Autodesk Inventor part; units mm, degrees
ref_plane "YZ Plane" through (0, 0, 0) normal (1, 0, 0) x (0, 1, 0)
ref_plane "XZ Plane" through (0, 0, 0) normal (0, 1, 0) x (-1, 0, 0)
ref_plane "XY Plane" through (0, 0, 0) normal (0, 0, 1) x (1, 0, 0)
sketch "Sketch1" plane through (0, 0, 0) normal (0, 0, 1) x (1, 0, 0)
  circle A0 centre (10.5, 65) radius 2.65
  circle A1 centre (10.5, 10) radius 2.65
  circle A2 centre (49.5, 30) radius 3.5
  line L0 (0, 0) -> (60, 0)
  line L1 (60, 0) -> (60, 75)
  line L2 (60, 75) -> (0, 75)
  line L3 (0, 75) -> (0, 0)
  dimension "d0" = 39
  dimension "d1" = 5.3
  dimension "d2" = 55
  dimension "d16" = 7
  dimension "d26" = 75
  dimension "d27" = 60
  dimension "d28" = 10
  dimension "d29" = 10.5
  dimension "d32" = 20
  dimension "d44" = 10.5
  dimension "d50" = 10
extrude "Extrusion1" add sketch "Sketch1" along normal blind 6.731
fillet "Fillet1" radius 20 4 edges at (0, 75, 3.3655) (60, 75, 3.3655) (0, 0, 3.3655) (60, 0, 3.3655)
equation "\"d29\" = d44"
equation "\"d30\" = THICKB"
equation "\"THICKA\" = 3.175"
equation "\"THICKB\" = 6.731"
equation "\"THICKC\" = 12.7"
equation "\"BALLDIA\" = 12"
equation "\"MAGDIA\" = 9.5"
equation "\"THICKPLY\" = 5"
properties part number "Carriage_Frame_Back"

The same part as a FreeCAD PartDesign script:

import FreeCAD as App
import Part
import Sketcher

V = App.Vector


def edges_at(feature, points):
    """Names of the edges that pass closest to the given points."""
    edges = feature.Shape.Edges
    near = lambda p: min(range(len(edges)), key=lambda i: edges[i].distToShape(Part.Vertex(*p))[0])
    return sorted({f"Edge{near(p) + 1}" for p in points})

doc = App.newDocument("Part")
body = doc.addObject("PartDesign::Body", "Body")

# Sketch on XY plane
sketch1 = body.newObject("Sketcher::SketchObject", "Sketch")
sketch1.AttachmentSupport = (doc.getObject("XY_Plane"), [""])
sketch1.MapMode = "FlatFace"
sketch1.addGeometry(Part.LineSegment(V(0, 75, 0), V(0, 0, 0)), False)
sketch1.addGeometry(Part.LineSegment(V(0, 0, 0), V(60, 0, 0)), False)
sketch1.addGeometry(Part.LineSegment(V(60, 0, 0), V(60, 75, 0)), False)
sketch1.addGeometry(Part.LineSegment(V(60, 75, 0), V(0, 75, 0)), False)
sketch1.addGeometry(Part.Circle(V(10.5, 10, 0), V(0, 0, 1), 2.6), False)
sketch1.addGeometry(Part.Circle(V(49.5, 30, 0), V(0, 0, 1), 3.5), False)
sketch1.addGeometry(Part.Circle(V(10.5, 65, 0), V(0, 0, 1), 2.6), False)
sketch1.addConstraint(Sketcher.Constraint("Coincident", 0, 2, 1, 1))
sketch1.addConstraint(Sketcher.Constraint("Coincident", 1, 2, 2, 1))
sketch1.addConstraint(Sketcher.Constraint("Coincident", 2, 2, 3, 1))
sketch1.addConstraint(Sketcher.Constraint("Coincident", 3, 2, 0, 1))
sketch1.addConstraint(Sketcher.Constraint("Vertical", 0))
sketch1.addConstraint(Sketcher.Constraint("Horizontal", 1))
sketch1.addConstraint(Sketcher.Constraint("Vertical", 2))
sketch1.addConstraint(Sketcher.Constraint("Horizontal", 3))
sketch1.addConstraint(Sketcher.Constraint("Coincident", 0, 2, -1, 1))
sketch1.addConstraint(Sketcher.Constraint("Equal", 4, 6))
sketch1.addConstraint(Sketcher.Constraint("Vertical", 4, 3, 6, 3))
sketch1.addConstraint(Sketcher.Constraint("Diameter", 5, 7.0))
sketch1.addConstraint(Sketcher.Constraint("Diameter", 4, 5.3))
sketch1.addConstraint(Sketcher.Constraint("DistanceX", 1, 1, 1, 2, 60.0))
sketch1.addConstraint(Sketcher.Constraint("DistanceY", 0, 2, 0, 1, 75.0))
sketch1.addConstraint(Sketcher.Constraint("DistanceY", -1, 1, 4, 3, 10.0))
sketch1.addConstraint(Sketcher.Constraint("DistanceX", 4, 3, 5, 3, 39.0))
sketch1.addConstraint(Sketcher.Constraint("DistanceY", 4, 3, 5, 3, 20.0))
sketch1.addConstraint(Sketcher.Constraint("DistanceY", 4, 3, 6, 3, 55.0))
sketch1.addConstraint(Sketcher.Constraint("DistanceX", -1, 1, 4, 3, 10.5))
pad1 = body.newObject("PartDesign::Pad", "Pad")
pad1.Profile = sketch1
pad1.Length = 6.731
doc.recompute()

fillet = body.newObject("PartDesign::Fillet", "Fillet")
fillet.Base = (pad1, edges_at(pad1, [
    (0, 75, 3.365),
    (60, 75, 3.365),
    (0, 0, 3.365),
    (60, 0, 3.365),
]))
fillet.Radius = 20

doc.recompute()
